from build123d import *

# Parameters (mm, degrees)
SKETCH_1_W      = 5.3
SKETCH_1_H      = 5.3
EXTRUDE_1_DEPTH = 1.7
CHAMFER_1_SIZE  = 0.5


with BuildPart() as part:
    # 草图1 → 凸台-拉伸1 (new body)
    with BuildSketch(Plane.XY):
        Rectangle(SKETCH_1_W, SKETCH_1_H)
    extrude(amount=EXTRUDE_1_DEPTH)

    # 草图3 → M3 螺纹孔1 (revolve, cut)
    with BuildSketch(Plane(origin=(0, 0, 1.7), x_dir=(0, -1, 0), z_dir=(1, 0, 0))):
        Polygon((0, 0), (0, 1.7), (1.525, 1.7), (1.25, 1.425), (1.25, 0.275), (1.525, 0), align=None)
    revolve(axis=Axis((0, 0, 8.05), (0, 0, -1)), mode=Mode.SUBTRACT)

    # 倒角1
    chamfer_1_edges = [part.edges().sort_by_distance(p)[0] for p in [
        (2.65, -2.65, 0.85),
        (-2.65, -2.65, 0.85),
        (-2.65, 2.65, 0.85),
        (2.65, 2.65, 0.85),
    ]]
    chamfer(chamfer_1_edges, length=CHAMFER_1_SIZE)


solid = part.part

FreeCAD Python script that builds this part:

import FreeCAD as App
import Part
import Sketcher
from FreeCAD import Vector


def edges_at(feature, points):
    """Names of the edges that pass closest to the given points."""
    edges = feature.Shape.Edges
    near = lambda p: min(range(len(edges)), key=lambda i: edges[i].distToShape(Part.Vertex(*p))[0])
    return sorted({f"Edge{near(p) + 1}" for p in points})

doc = App.newDocument("Part")
body = doc.addObject("PartDesign::Body", "Body")

# Sketch on XY plane
sketch1 = doc.addObject("Sketcher::SketchObject", "Sketch")
body.addObject(sketch1)
sketch1.AttachmentSupport = (doc.XY_Plane, [""])
sketch1.MapMode = "FlatFace"
sketch1.addGeometry(Part.LineSegment(Vector(-2.65, 2.65, 0), Vector(-2.65, -2.65, 0)), False)
sketch1.addGeometry(Part.LineSegment(Vector(-2.65, -2.65, 0), Vector(2.65, -2.65, 0)), False)
sketch1.addGeometry(Part.LineSegment(Vector(2.65, -2.65, 0), Vector(2.65, 2.65, 0)), False)
sketch1.addGeometry(Part.LineSegment(Vector(2.65, 2.65, 0), Vector(-2.65, 2.65, 0)), False)
sketch1.addConstraint(Sketcher.Constraint("Coincident", 0, 2, 1, 1))
sketch1.addConstraint(Sketcher.Constraint("Coincident", 1, 2, 2, 1))
sketch1.addConstraint(Sketcher.Constraint("Coincident", 2, 2, 3, 1))
sketch1.addConstraint(Sketcher.Constraint("Coincident", 3, 2, 0, 1))
sketch1.addConstraint(Sketcher.Constraint("Vertical", 0))
sketch1.addConstraint(Sketcher.Constraint("Horizontal", 1))
sketch1.addConstraint(Sketcher.Constraint("Vertical", 2))
sketch1.addConstraint(Sketcher.Constraint("Horizontal", 3))
sketch1.addConstraint(Sketcher.Constraint("Symmetric", 0, 2, 2, 2, -1, 1))
sketch1.addConstraint(Sketcher.Constraint("Equal", 3, 0))
sketch1.addConstraint(Sketcher.Constraint("DistanceX", 1, 1, 1, 2, 5.3))
pad1 = doc.addObject("PartDesign::Pad", "Pad")
body.addObject(pad1)
pad1.Profile = sketch1
pad1.Length = 1.7

# Sketch on YZ plane
sketch2 = doc.addObject("Sketcher::SketchObject", "Sketch001")
body.addObject(sketch2)
sketch2.AttachmentSupport = (doc.YZ_Plane, [""])
sketch2.MapMode = "FlatFace"
sketch2.addGeometry(Part.LineSegment(Vector(0, 0, 0), Vector(0, 1.7, 0)), False)
sketch2.addGeometry(Part.LineSegment(Vector(0, 1.7, 0), Vector(-1.525, 1.7, 0)), False)
sketch2.addGeometry(Part.LineSegment(Vector(-1.525, 1.7, 0), Vector(-1.25, 1.425, 0)), False)
sketch2.addGeometry(Part.LineSegment(Vector(-1.25, 1.425, 0), Vector(-1.25, 0.275, 0)), False)
sketch2.addGeometry(Part.LineSegment(Vector(-1.25, 0.275, 0), Vector(-1.525, 0, 0)), False)
sketch2.addGeometry(Part.LineSegment(Vector(-1.525, 0, 0), Vector(0, 0, 0)), False)
sketch2.addConstraint(Sketcher.Constraint("Coincident", 0, 2, 1, 1))
sketch2.addConstraint(Sketcher.Constraint("Coincident", 1, 2, 2, 1))
sketch2.addConstraint(Sketcher.Constraint("Coincident", 2, 2, 3, 1))
sketch2.addConstraint(Sketcher.Constraint("Coincident", 3, 2, 4, 1))
sketch2.addConstraint(Sketcher.Constraint("Coincident", 4, 2, 5, 1))
sketch2.addConstraint(Sketcher.Constraint("Coincident", 5, 2, 0, 1))
sketch2.addConstraint(Sketcher.Constraint("Vertical", 0))
sketch2.addConstraint(Sketcher.Constraint("Horizontal", 1))
sketch2.addConstraint(Sketcher.Constraint("Vertical", 3))
sketch2.addConstraint(Sketcher.Constraint("Horizontal", 5))
sketch2.addConstraint(Sketcher.Constraint("Coincident", 5, 2, -1, 1))
sketch2.addConstraint(Sketcher.Constraint("Perpendicular", 2, 4))
sketch2.addConstraint(Sketcher.Constraint("Vertical", 1, 2, 4, 2))
sketch2.addConstraint(Sketcher.Constraint("Equal", 2, 4))
sketch2.addConstraint(Sketcher.Constraint("DistanceY", 0, 1, 0, 2, 1.7))
sketch2.addConstraint(Sketcher.Constraint("DistanceY", 3, 2, 3, 1, 1.15))
sketch2.addConstraint(Sketcher.Constraint("DistanceX", 1, 2, 1, 1, 1.525))
groove = doc.addObject("PartDesign::Groove", "Groove")
body.addObject(groove)
groove.Profile = sketch2
groove.ReferenceAxis = (sketch2, ["V_Axis"])
groove.Angle = 360
doc.recompute()

chamfer = doc.addObject("PartDesign::Chamfer", "Chamfer")
body.addObject(chamfer)
chamfer.Base = (groove, edges_at(groove, [
    (2.65, -2.65, 0.85),
    (-2.65, -2.65, 0.85),
    (-2.65, 2.65, 0.85),
    (2.65, 2.65, 0.85),
]))
chamfer.Size = 0.5

doc.recompute()
